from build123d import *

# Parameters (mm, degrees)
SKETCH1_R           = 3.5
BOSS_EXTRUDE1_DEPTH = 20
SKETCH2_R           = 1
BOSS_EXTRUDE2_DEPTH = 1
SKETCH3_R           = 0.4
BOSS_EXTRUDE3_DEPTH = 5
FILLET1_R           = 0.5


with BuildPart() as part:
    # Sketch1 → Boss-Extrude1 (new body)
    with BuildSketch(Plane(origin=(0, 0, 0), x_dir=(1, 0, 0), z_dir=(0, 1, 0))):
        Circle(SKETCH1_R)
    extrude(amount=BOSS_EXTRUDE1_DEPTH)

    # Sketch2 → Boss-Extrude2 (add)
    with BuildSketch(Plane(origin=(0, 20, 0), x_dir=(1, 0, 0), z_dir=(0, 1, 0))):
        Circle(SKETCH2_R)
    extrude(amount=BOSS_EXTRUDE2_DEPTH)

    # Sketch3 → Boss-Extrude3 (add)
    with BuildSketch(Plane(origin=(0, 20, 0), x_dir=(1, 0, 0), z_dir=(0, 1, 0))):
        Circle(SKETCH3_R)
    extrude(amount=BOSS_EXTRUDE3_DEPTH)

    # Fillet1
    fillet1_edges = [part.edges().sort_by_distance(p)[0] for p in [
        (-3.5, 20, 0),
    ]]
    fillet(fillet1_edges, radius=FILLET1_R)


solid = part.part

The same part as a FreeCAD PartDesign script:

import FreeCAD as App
import Part
import Sketcher

V = App.Vector


def edges_at(feature, points):
    """Names of the edges that pass closest to the given points."""
    edges = feature.Shape.Edges
    near = lambda p: min(range(len(edges)), key=lambda i: edges[i].distToShape(Part.Vertex(*p))[0])
    return sorted({f"Edge{near(p) + 1}" for p in points})

doc = App.newDocument("Part")
body = doc.addObject("PartDesign::Body", "Body")

# Sketch on XZ plane
sketch1 = body.newObject("Sketcher::SketchObject", "Sketch")
sketch1.AttachmentSupport = (doc.getObject("XZ_Plane"), [""])
sketch1.MapMode = "FlatFace"
sketch1.addGeometry(Part.Circle(V(0, 0, 0), V(0, 0, 1), 3.5), False)
sketch1.addConstraint([
    Sketcher.Constraint("Coincident", 0, 3, -1, 1),
    Sketcher.Constraint("Diameter", 0, 7.0),
])
pad1 = body.newObject("PartDesign::Pad", "Pad")
pad1.Profile = sketch1
pad1.Length = 20
pad1.Reversed = True

# Sketch on XZ plane
sketch2 = body.newObject("Sketcher::SketchObject", "Sketch001")
sketch2.AttachmentSupport = (doc.getObject("XZ_Plane"), [""])
sketch2.MapMode = "FlatFace"
sketch2.AttachmentOffset = App.Placement(V(0, 0, -20), App.Rotation())
sketch2.addGeometry(Part.Circle(V(0, 0, 0), V(0, 0, 1), 1), False)
sketch2.addConstraint([
    Sketcher.Constraint("Coincident", 0, 3, -1, 1),
    Sketcher.Constraint("Diameter", 0, 2.0),
])
pad2 = body.newObject("PartDesign::Pad", "Pad001")
pad2.Profile = sketch2
pad2.Length = 1
pad2.Reversed = True

# Sketch on XZ plane
sketch3 = body.newObject("Sketcher::SketchObject", "Sketch002")
sketch3.AttachmentSupport = (doc.getObject("XZ_Plane"), [""])
sketch3.MapMode = "FlatFace"
sketch3.AttachmentOffset = App.Placement(V(0, 0, -20), App.Rotation())
sketch3.addGeometry(Part.Circle(V(0, 0, 0), V(0, 0, 1), 0.4), False)
sketch3.addConstraint([
    Sketcher.Constraint("Coincident", 0, 3, -1, 1),
    Sketcher.Constraint("Diameter", 0, 0.8),
])
pad3 = body.newObject("PartDesign::Pad", "Pad002")
pad3.Profile = sketch3
pad3.Length = 5
pad3.Reversed = True
doc.recompute()

fillet = body.newObject("PartDesign::Fillet", "Fillet")
fillet.Base = (pad3, edges_at(pad3, [(-3.5, 20, 0)]))
fillet.Radius = 0.5

doc.recompute()
